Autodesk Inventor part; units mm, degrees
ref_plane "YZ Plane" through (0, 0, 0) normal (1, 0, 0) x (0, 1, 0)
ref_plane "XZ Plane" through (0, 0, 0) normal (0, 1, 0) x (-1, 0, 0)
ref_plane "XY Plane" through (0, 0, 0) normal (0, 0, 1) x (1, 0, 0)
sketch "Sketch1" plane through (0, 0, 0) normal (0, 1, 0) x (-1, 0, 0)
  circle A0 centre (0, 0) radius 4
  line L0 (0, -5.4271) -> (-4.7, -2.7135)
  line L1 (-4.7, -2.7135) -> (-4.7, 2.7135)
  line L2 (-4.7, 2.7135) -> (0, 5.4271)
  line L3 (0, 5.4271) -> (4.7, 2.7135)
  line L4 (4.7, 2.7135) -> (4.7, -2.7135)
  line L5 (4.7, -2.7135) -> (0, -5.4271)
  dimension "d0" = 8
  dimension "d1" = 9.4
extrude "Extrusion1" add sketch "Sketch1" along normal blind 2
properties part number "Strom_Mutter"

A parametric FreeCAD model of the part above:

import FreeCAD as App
import Part
import Sketcher
Q = App.Units.Quantity

doc = App.newDocument("Part")
params = doc.addObject("Spreadsheet::Sheet", "Params")
for row, (alias, value) in enumerate([
    ("sketch1_diameter", "8 mm"),
    ("pad1_length", "2 mm"),
], start=1):
    params.set(f"A{row}", alias)
    params.set(f"B{row}", "=" + value)
    params.setAlias(f"B{row}", alias)

body = doc.addObject("PartDesign::Body", "Body")

# Sketch on XZ plane
sketch1 = doc.addObject("Sketcher::SketchObject", "Sketch")
body.addObject(sketch1)
sketch1.AttachmentSupport = (doc.XZ_Plane, [""])
sketch1.MapMode = "FlatFace"
sketch1.addGeometry([
    Part.LineSegment(App.Vector(4.7, -2.7, 0), App.Vector(0, -5.4, 0)),  # 0
    Part.LineSegment(App.Vector(0, -5.4, 0), App.Vector(-4.7, -2.7, 0)),  # 1
    Part.LineSegment(App.Vector(-4.7, -2.7, 0), App.Vector(-4.7, 2.7, 0)),  # 2
    Part.LineSegment(App.Vector(-4.7, 2.7, 0), App.Vector(0, 5.4, 0)),  # 3
    Part.LineSegment(App.Vector(0, 5.4, 0), App.Vector(4.7, 2.7, 0)),  # 4
    Part.LineSegment(App.Vector(4.7, 2.7, 0), App.Vector(4.7, -2.7, 0)),  # 5
    Part.Circle(App.Vector(0, 0, 0), App.Vector(0, 0, 1), 4),  # 6
], False)
sketch1.addConstraint([
    Sketcher.Constraint("Coincident", 0, 2, 1, 1),
    Sketcher.Constraint("Coincident", 1, 2, 2, 1),
    Sketcher.Constraint("Coincident", 2, 2, 3, 1),
    Sketcher.Constraint("Coincident", 3, 2, 4, 1),
    Sketcher.Constraint("Coincident", 4, 2, 5, 1),
    Sketcher.Constraint("Coincident", 5, 2, 0, 1),
    Sketcher.Constraint("Vertical", 2),
    Sketcher.Constraint("Vertical", 5),
    Sketcher.Constraint("Coincident", 6, 3, -1, 1),
    Sketcher.Constraint("Symmetric", 0, 2, 3, 2, -1, 1),
    Sketcher.Constraint("Symmetric", 1, 2, 4, 2, -1, 1),
    Sketcher.Constraint("PointOnObject", 0, 2, -2),
    Sketcher.Constraint("Parallel", 0, 3),
    Sketcher.Constraint("Horizontal", 2, 2, 4, 2),
    Sketcher.Constraint("Diameter", 6, 8.0),
    Sketcher.Constraint("DistanceX", 2, 2, 4, 2, 9.4),
    Sketcher.Constraint("Angle", 0, Q("-149.9995 deg")),
    Sketcher.Constraint("DistanceY", 2, 1, 2, 2, 5.427),
])
sketch1.setExpression("Constraints[14]", "Params.sketch1_diameter")
pad1 = doc.addObject("PartDesign::Pad", "Pad")
body.addObject(pad1)
pad1.Profile = sketch1
pad1.setExpression("Length", "Params.pad1_length")
pad1.Reversed = True

doc.recompute()
